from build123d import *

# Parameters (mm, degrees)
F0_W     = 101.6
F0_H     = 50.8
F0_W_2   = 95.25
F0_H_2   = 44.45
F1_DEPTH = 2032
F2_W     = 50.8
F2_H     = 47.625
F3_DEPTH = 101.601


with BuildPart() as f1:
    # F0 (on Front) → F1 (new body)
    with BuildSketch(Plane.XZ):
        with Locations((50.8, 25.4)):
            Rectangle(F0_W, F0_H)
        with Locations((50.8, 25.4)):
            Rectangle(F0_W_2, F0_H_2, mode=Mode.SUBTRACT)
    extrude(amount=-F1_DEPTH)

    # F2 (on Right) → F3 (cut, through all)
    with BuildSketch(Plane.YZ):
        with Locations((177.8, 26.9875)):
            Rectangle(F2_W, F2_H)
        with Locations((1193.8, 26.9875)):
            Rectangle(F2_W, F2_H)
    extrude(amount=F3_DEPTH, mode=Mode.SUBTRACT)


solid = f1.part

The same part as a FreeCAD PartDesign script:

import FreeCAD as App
import Part
import Sketcher
from FreeCAD import Vector
Q = App.Units.Quantity

doc = App.newDocument("Part")
body = doc.addObject("PartDesign::Body", "Body")

# Sketch on XZ plane
sketch1 = body.newObject("Sketcher::SketchObject", "Sketch")
sketch1.AttachmentSupport = (doc.getObject("XZ_Plane"), [""])
sketch1.MapMode = "FlatFace"
sketch1.addGeometry(Part.LineSegment(Vector(0, 50.8, 0), Vector(0, 0, 0)), False)
sketch1.addGeometry(Part.LineSegment(Vector(0, 0, 0), Vector(101.6, 0, 0)), False)
sketch1.addGeometry(Part.LineSegment(Vector(101.6, 0, 0), Vector(101.6, 50.8, 0)), False)
sketch1.addGeometry(Part.LineSegment(Vector(101.6, 50.8, 0), Vector(0, 50.8, 0)), False)
sketch1.addGeometry(Part.LineSegment(Vector(98.425, 3.175, 0), Vector(3.175, 3.175, 0)), False)
sketch1.addGeometry(Part.LineSegment(Vector(3.175, 3.175, 0), Vector(3.175, 47.625, 0)), False)
sketch1.addGeometry(Part.LineSegment(Vector(3.175, 47.625, 0), Vector(98.425, 47.625, 0)), False)
sketch1.addGeometry(Part.LineSegment(Vector(98.425, 47.625, 0), Vector(98.425, 3.175, 0)), False)
sketch1.addConstraint(Sketcher.Constraint("Coincident", 0, 2, 1, 1))
sketch1.addConstraint(Sketcher.Constraint("Coincident", 1, 2, 2, 1))
sketch1.addConstraint(Sketcher.Constraint("Coincident", 2, 2, 3, 1))
sketch1.addConstraint(Sketcher.Constraint("Coincident", 3, 2, 0, 1))
sketch1.addConstraint(Sketcher.Constraint("Coincident", 4, 2, 5, 1))
sketch1.addConstraint(Sketcher.Constraint("Coincident", 5, 2, 6, 1))
sketch1.addConstraint(Sketcher.Constraint("Coincident", 6, 2, 7, 1))
sketch1.addConstraint(Sketcher.Constraint("Coincident", 7, 2, 4, 1))
sketch1.addConstraint(Sketcher.Constraint("Vertical", 0))
sketch1.addConstraint(Sketcher.Constraint("Horizontal", 1))
sketch1.addConstraint(Sketcher.Constraint("Vertical", 2))
sketch1.addConstraint(Sketcher.Constraint("Horizontal", 3))
sketch1.addConstraint(Sketcher.Constraint("Horizontal", 4))
sketch1.addConstraint(Sketcher.Constraint("Vertical", 5))
sketch1.addConstraint(Sketcher.Constraint("Horizontal", 6))
sketch1.addConstraint(Sketcher.Constraint("Vertical", 7))
sketch1.addConstraint(Sketcher.Constraint("Coincident", 0, 2, -1, 1))
sketch1.addConstraint(Sketcher.Constraint("DistanceX", 1, 1, 1, 2, Q("4 in")))
sketch1.addConstraint(Sketcher.Constraint("DistanceY", 0, 2, 0, 1, Q("2 in")))
sketch1.addConstraint(Sketcher.Constraint("DistanceX", 4, 2, 4, 1, Q("3.75 in")))
sketch1.addConstraint(Sketcher.Constraint("DistanceY", 5, 1, 5, 2, Q("1.75 in")))
sketch1.addConstraint(Sketcher.Constraint("DistanceX", -1, 1, 4, 2, Q("0.125 in")))
sketch1.addConstraint(Sketcher.Constraint("DistanceY", -1, 1, 4, 2, Q("0.125 in")))
pad1 = body.newObject("PartDesign::Pad", "Pad")
pad1.Profile = sketch1
pad1.Length = Q("80 in")
pad1.Reversed = True

# Sketch on YZ plane
sketch2 = body.newObject("Sketcher::SketchObject", "Sketch001")
sketch2.AttachmentSupport = (doc.getObject("YZ_Plane"), [""])
sketch2.MapMode = "FlatFace"
sketch2.addGeometry(Part.LineSegment(Vector(152.4, 50.8, 0), Vector(152.4, 3.175, 0)), False)
sketch2.addGeometry(Part.LineSegment(Vector(152.4, 3.175, 0), Vector(203.2, 3.175, 0)), False)
sketch2.addGeometry(Part.LineSegment(Vector(203.2, 3.175, 0), Vector(203.2, 50.8, 0)), False)
sketch2.addGeometry(Part.LineSegment(Vector(203.2, 50.8, 0), Vector(152.4, 50.8, 0)), False)
sketch2.addGeometry(Part.LineSegment(Vector(1168.4, 50.8, 0), Vector(1168.4, 3.175, 0)), False)
sketch2.addGeometry(Part.LineSegment(Vector(1168.4, 3.175, 0), Vector(1219.2, 3.175, 0)), False)
sketch2.addGeometry(Part.LineSegment(Vector(1219.2, 3.175, 0), Vector(1219.2, 50.8, 0)), False)
sketch2.addGeometry(Part.LineSegment(Vector(1219.2, 50.8, 0), Vector(1168.4, 50.8, 0)), False)
sketch2.addConstraint(Sketcher.Constraint("Coincident", 0, 2, 1, 1))
sketch2.addConstraint(Sketcher.Constraint("Coincident", 1, 2, 2, 1))
sketch2.addConstraint(Sketcher.Constraint("Coincident", 2, 2, 3, 1))
sketch2.addConstraint(Sketcher.Constraint("Coincident", 3, 2, 0, 1))
sketch2.addConstraint(Sketcher.Constraint("Coincident", 4, 2, 5, 1))
sketch2.addConstraint(Sketcher.Constraint("Coincident", 5, 2, 6, 1))
sketch2.addConstraint(Sketcher.Constraint("Coincident", 6, 2, 7, 1))
sketch2.addConstraint(Sketcher.Constraint("Coincident", 7, 2, 4, 1))
sketch2.addConstraint(Sketcher.Constraint("Vertical", 0))
sketch2.addConstraint(Sketcher.Constraint("Horizontal", 1))
sketch2.addConstraint(Sketcher.Constraint("Vertical", 2))
sketch2.addConstraint(Sketcher.Constraint("Horizontal", 3))
sketch2.addConstraint(Sketcher.Constraint("Vertical", 4))
sketch2.addConstraint(Sketcher.Constraint("Horizontal", 5))
sketch2.addConstraint(Sketcher.Constraint("Vertical", 6))
sketch2.addConstraint(Sketcher.Constraint("Horizontal", 7))
sketch2.addConstraint(Sketcher.Constraint("Horizontal", 1, 2, 4, 2))
sketch2.addConstraint(Sketcher.Constraint("Horizontal", 3, 2, 6, 2))
sketch2.addConstraint(Sketcher.Constraint("Equal", 3, 5))
sketch2.addConstraint(Sketcher.Constraint("DistanceX", 1, 1, 1, 2, Q("2 in")))
sketch2.addConstraint(Sketcher.Constraint("DistanceX", -1, 1, 0, 2, Q("6 in")))
sketch2.addConstraint(Sketcher.Constraint("DistanceY", -1, 1, 2, 2, Q("2 in")))
sketch2.addConstraint(Sketcher.Constraint("DistanceX", -1, 1, 4, 2, Q("46 in")))
sketch2.addConstraint(Sketcher.Constraint("DistanceY", 0, 2, 0, 1, Q("1.875 in")))
pocket1 = body.newObject("PartDesign::Pocket", "Pocket")
pocket1.Profile = sketch2
pocket1.Type = "ThroughAll"
pocket1.Reversed = True

doc.recompute()
